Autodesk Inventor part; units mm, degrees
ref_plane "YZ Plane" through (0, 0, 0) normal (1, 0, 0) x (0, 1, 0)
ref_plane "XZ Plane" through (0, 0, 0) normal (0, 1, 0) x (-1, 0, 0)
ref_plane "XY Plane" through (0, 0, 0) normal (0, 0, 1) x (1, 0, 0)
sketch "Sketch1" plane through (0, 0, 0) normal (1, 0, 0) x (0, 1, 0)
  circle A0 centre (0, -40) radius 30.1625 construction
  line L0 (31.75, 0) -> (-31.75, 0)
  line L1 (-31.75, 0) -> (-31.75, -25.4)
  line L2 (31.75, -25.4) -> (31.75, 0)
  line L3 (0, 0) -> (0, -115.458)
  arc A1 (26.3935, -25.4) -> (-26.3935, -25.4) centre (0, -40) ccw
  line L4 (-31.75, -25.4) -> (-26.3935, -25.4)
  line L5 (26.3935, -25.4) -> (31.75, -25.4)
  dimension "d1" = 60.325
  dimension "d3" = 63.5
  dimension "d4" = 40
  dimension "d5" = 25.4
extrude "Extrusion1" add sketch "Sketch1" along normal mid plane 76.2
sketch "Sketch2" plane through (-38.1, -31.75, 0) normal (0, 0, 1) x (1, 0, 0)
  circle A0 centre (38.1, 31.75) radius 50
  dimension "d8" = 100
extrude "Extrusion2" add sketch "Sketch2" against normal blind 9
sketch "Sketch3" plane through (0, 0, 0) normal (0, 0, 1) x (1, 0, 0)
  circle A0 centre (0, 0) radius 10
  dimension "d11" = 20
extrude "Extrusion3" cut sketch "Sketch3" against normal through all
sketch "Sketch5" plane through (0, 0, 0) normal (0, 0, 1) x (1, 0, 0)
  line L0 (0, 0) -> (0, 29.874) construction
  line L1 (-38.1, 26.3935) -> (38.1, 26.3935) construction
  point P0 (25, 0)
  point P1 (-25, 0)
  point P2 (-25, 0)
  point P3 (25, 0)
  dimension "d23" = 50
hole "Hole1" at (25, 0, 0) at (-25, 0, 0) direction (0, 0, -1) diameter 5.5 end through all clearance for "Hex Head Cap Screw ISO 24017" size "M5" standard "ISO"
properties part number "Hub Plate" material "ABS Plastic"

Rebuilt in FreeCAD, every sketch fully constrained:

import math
import FreeCAD as App
import Part
import Sketcher
from FreeCAD import Vector
Q = App.Units.Quantity

doc = App.newDocument("Part")
params = doc.addObject("Spreadsheet::Sheet", "Params")
for row, (alias, value) in enumerate([
    ("sketch1_height", "1 in"),
    ("sketch1_width", "2.5 in"),
    ("sketch1_radius", "1.1875 in"),
    ("pad1_length", "3 in"),
    ("sketch2_diameter", "3.937 in"),
    ("pad2_length", "9 mm"),
    ("hole_diameter", "5.5 mm"),
], start=1):
    params.set(f"A{row}", alias)
    params.set(f"B{row}", "=" + value)
    params.setAlias(f"B{row}", alias)

body = doc.addObject("PartDesign::Body", "Body")

# Sketch on YZ plane
sketch1 = body.newObject("Sketcher::SketchObject", "Sketch")
sketch1.AttachmentSupport = (doc.getObject("YZ_Plane"), [""])
sketch1.MapMode = "FlatFace"
sketch1.addGeometry(Part.LineSegment(Vector(31.75, -25.4, 0), Vector(31.75, 0, 0)), False)
sketch1.addGeometry(Part.LineSegment(Vector(31.75, 0, 0), Vector(-31.75, 0, 0)), False)
sketch1.addGeometry(Part.LineSegment(Vector(-31.75, 0, 0), Vector(-31.75, -25.4, 0)), False)
sketch1.addGeometry(Part.LineSegment(Vector(-31.75, -25.4, 0), Vector(-26.3935, -25.4, 0)), False)
sketch1.addGeometry(Part.ArcOfCircle(Part.Circle(Vector(0, -40, 0), Vector(0, 0, 1), 30.162507), math.radians(28.949899), math.radians(151.050101)), False)
sketch1.addGeometry(Part.LineSegment(Vector(26.3935, -25.4, 0), Vector(31.75, -25.4, 0)), False)
sketch1.addConstraint(Sketcher.Constraint("Coincident", 0, 2, 1, 1))
sketch1.addConstraint(Sketcher.Constraint("Coincident", 1, 2, 2, 1))
sketch1.addConstraint(Sketcher.Constraint("Coincident", 2, 2, 3, 1))
sketch1.addConstraint(Sketcher.Constraint("Coincident", 3, 2, 4, 2))
sketch1.addConstraint(Sketcher.Constraint("Coincident", 4, 1, 5, 1))
sketch1.addConstraint(Sketcher.Constraint("Coincident", 5, 2, 0, 1))
sketch1.addConstraint(Sketcher.Constraint("Vertical", 0))
sketch1.addConstraint(Sketcher.Constraint("Horizontal", 1))
sketch1.addConstraint(Sketcher.Constraint("Vertical", 2))
sketch1.addConstraint(Sketcher.Constraint("Horizontal", 3))
sketch1.addConstraint(Sketcher.Constraint("Horizontal", 5))
sketch1.addConstraint(Sketcher.Constraint("Symmetric", 0, 2, 1, 2, -1, 1))
sketch1.addConstraint(Sketcher.Constraint("Symmetric", 3, 2, 4, 1, -2))
sketch1.addConstraint(Sketcher.Constraint("DistanceY", 0, 1, 0, 2, Q("1 in")))
sketch1.addConstraint(Sketcher.Constraint("DistanceX", 1, 2, 1, 1, Q("2.5 in")))
sketch1.addConstraint(Sketcher.Constraint("Radius", 4, Q("1.1875 in")))
sketch1.addConstraint(Sketcher.Constraint("DistanceY", 4, 3, -1, 1, Q("1.5748 in")))
sketch1.setExpression("Constraints[13]", "Params.sketch1_height")
sketch1.setExpression("Constraints[14]", "Params.sketch1_width")
sketch1.setExpression("Constraints[15]", "Params.sketch1_radius")
pad1 = body.newObject("PartDesign::Pad", "Pad")
pad1.Profile = sketch1
pad1.setExpression("Length", "Params.pad1_length")
pad1.Midplane = True

# Sketch on XY plane
sketch2 = body.newObject("Sketcher::SketchObject", "Sketch001")
sketch2.AttachmentSupport = (doc.getObject("XY_Plane"), [""])
sketch2.MapMode = "FlatFace"
sketch2.addGeometry(Part.Circle(Vector(0, 0, 0), Vector(0, 0, 1), 50), False)
sketch2.addConstraint(Sketcher.Constraint("Coincident", 0, 3, -1, 1))
sketch2.addConstraint(Sketcher.Constraint("Diameter", 0, Q("3.937 in")))
sketch2.setExpression("Constraints[1]", "Params.sketch2_diameter")
pad2 = body.newObject("PartDesign::Pad", "Pad001")
pad2.Profile = sketch2
pad2.setExpression("Length", "Params.pad2_length")
pad2.Reversed = True

# Sketch on XY plane
sketch3 = body.newObject("Sketcher::SketchObject", "Sketch002")
sketch3.AttachmentSupport = (doc.getObject("XY_Plane"), [""])
sketch3.MapMode = "FlatFace"
sketch3.addGeometry(Part.Circle(Vector(0, 0, 0), Vector(0, 0, 1), 10), False)
sketch3.addConstraint(Sketcher.Constraint("Coincident", 0, 3, -1, 1))
sketch3.addConstraint(Sketcher.Constraint("Diameter", 0, Q("0.7874 in")))
pocket1 = body.newObject("PartDesign::Pocket", "Pocket")
pocket1.Profile = sketch3
pocket1.Type = "ThroughAll"

# Sketch on XY plane
sketch4 = body.newObject("Sketcher::SketchObject", "Sketch003")
sketch4.AttachmentSupport = (doc.getObject("XY_Plane"), [""])
sketch4.MapMode = "FlatFace"
sketch4.addGeometry(Part.Circle(Vector(25, 0, 0), Vector(0, 0, 1), 2.75), False)
sketch4.addGeometry(Part.Circle(Vector(-25, 0, 0), Vector(0, 0, 1), 2.75), False)
sketch4.addConstraint(Sketcher.Constraint("Equal", 0, 1))
sketch4.addConstraint(Sketcher.Constraint("Symmetric", 0, 3, 1, 3, -1, 1))
sketch4.addConstraint(Sketcher.Constraint("PointOnObject", 0, 3, -1))
sketch4.addConstraint(Sketcher.Constraint("Diameter", 0, Q("5.5 mm")))
sketch4.addConstraint(Sketcher.Constraint("DistanceX", 1, 3, 0, 3, Q("1.9685 in")))
doc.recompute()
hole = body.newObject("PartDesign::Hole", "Hole")
hole.Profile = sketch4
hole.ThreadType = "None"
hole.setExpression("Diameter", "Params.hole_diameter")
hole.DepthType = "ThroughAll"

doc.recompute()
